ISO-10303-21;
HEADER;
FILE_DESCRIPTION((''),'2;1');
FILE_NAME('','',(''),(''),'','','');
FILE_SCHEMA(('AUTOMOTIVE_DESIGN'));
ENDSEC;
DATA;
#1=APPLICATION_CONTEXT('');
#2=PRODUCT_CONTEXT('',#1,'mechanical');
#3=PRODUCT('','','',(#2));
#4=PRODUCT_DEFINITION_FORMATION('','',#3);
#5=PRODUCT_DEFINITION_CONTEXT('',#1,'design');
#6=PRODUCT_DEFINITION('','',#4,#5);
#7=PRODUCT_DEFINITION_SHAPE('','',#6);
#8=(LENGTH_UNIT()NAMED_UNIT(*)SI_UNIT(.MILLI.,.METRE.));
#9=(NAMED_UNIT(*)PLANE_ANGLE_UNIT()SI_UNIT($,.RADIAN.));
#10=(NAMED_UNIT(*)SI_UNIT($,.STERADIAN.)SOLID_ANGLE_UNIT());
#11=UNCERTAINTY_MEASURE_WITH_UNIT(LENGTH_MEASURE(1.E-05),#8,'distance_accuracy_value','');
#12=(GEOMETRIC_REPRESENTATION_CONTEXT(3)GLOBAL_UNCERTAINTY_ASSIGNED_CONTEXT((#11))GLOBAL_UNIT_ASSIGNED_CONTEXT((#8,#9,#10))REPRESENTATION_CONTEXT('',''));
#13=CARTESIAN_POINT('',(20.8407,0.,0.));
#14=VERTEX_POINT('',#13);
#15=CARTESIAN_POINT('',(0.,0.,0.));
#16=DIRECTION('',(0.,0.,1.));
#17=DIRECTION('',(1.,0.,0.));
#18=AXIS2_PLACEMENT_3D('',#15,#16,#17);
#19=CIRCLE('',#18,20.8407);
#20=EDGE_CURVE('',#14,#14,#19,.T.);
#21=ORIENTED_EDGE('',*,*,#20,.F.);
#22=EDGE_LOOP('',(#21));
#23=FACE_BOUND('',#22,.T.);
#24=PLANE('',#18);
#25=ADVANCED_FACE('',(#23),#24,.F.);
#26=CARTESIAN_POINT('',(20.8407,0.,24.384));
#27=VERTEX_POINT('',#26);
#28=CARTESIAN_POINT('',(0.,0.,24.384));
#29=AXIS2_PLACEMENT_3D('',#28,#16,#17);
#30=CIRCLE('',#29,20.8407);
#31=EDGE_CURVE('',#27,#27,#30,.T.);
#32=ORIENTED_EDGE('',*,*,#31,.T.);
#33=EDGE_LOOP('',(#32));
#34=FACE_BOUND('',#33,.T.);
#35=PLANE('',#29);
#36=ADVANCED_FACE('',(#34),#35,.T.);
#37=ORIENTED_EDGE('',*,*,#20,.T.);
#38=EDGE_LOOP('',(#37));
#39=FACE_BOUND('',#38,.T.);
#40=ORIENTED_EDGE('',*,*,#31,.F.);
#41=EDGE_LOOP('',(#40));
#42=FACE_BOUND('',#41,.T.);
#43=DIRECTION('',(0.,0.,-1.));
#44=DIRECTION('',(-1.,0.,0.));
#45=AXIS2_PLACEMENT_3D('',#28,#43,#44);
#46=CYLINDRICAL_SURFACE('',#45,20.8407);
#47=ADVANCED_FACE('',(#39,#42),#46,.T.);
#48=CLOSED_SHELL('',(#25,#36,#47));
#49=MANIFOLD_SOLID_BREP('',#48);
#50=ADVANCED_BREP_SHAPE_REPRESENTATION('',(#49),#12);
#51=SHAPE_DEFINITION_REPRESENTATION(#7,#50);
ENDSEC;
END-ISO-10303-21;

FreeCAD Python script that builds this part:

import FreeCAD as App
import Part
import Sketcher
from FreeCAD import Vector
Q = App.Units.Quantity

doc = App.newDocument("Part")
body = doc.addObject("PartDesign::Body", "Body")

sketch1 = body.newObject("Sketcher::SketchObject", "Sketch")
sketch1.AttachmentSupport = (doc.getObject("XY_Plane"), [""])
sketch1.MapMode = "FlatFace"
sketch1.addGeometry(Part.Circle(Vector(0, 0, 0), Vector(0, 0, 1), 21), False)
sketch1.addConstraint([
    Sketcher.Constraint("Coincident", 0, 3, -1, 1),
    Sketcher.Constraint("Diameter", 0, Q("1.641 in")),
])
pad1 = body.newObject("PartDesign::Pad", "Pad")
pad1.Profile = sketch1
pad1.Length = Q("0.96 in")

doc.recompute()
